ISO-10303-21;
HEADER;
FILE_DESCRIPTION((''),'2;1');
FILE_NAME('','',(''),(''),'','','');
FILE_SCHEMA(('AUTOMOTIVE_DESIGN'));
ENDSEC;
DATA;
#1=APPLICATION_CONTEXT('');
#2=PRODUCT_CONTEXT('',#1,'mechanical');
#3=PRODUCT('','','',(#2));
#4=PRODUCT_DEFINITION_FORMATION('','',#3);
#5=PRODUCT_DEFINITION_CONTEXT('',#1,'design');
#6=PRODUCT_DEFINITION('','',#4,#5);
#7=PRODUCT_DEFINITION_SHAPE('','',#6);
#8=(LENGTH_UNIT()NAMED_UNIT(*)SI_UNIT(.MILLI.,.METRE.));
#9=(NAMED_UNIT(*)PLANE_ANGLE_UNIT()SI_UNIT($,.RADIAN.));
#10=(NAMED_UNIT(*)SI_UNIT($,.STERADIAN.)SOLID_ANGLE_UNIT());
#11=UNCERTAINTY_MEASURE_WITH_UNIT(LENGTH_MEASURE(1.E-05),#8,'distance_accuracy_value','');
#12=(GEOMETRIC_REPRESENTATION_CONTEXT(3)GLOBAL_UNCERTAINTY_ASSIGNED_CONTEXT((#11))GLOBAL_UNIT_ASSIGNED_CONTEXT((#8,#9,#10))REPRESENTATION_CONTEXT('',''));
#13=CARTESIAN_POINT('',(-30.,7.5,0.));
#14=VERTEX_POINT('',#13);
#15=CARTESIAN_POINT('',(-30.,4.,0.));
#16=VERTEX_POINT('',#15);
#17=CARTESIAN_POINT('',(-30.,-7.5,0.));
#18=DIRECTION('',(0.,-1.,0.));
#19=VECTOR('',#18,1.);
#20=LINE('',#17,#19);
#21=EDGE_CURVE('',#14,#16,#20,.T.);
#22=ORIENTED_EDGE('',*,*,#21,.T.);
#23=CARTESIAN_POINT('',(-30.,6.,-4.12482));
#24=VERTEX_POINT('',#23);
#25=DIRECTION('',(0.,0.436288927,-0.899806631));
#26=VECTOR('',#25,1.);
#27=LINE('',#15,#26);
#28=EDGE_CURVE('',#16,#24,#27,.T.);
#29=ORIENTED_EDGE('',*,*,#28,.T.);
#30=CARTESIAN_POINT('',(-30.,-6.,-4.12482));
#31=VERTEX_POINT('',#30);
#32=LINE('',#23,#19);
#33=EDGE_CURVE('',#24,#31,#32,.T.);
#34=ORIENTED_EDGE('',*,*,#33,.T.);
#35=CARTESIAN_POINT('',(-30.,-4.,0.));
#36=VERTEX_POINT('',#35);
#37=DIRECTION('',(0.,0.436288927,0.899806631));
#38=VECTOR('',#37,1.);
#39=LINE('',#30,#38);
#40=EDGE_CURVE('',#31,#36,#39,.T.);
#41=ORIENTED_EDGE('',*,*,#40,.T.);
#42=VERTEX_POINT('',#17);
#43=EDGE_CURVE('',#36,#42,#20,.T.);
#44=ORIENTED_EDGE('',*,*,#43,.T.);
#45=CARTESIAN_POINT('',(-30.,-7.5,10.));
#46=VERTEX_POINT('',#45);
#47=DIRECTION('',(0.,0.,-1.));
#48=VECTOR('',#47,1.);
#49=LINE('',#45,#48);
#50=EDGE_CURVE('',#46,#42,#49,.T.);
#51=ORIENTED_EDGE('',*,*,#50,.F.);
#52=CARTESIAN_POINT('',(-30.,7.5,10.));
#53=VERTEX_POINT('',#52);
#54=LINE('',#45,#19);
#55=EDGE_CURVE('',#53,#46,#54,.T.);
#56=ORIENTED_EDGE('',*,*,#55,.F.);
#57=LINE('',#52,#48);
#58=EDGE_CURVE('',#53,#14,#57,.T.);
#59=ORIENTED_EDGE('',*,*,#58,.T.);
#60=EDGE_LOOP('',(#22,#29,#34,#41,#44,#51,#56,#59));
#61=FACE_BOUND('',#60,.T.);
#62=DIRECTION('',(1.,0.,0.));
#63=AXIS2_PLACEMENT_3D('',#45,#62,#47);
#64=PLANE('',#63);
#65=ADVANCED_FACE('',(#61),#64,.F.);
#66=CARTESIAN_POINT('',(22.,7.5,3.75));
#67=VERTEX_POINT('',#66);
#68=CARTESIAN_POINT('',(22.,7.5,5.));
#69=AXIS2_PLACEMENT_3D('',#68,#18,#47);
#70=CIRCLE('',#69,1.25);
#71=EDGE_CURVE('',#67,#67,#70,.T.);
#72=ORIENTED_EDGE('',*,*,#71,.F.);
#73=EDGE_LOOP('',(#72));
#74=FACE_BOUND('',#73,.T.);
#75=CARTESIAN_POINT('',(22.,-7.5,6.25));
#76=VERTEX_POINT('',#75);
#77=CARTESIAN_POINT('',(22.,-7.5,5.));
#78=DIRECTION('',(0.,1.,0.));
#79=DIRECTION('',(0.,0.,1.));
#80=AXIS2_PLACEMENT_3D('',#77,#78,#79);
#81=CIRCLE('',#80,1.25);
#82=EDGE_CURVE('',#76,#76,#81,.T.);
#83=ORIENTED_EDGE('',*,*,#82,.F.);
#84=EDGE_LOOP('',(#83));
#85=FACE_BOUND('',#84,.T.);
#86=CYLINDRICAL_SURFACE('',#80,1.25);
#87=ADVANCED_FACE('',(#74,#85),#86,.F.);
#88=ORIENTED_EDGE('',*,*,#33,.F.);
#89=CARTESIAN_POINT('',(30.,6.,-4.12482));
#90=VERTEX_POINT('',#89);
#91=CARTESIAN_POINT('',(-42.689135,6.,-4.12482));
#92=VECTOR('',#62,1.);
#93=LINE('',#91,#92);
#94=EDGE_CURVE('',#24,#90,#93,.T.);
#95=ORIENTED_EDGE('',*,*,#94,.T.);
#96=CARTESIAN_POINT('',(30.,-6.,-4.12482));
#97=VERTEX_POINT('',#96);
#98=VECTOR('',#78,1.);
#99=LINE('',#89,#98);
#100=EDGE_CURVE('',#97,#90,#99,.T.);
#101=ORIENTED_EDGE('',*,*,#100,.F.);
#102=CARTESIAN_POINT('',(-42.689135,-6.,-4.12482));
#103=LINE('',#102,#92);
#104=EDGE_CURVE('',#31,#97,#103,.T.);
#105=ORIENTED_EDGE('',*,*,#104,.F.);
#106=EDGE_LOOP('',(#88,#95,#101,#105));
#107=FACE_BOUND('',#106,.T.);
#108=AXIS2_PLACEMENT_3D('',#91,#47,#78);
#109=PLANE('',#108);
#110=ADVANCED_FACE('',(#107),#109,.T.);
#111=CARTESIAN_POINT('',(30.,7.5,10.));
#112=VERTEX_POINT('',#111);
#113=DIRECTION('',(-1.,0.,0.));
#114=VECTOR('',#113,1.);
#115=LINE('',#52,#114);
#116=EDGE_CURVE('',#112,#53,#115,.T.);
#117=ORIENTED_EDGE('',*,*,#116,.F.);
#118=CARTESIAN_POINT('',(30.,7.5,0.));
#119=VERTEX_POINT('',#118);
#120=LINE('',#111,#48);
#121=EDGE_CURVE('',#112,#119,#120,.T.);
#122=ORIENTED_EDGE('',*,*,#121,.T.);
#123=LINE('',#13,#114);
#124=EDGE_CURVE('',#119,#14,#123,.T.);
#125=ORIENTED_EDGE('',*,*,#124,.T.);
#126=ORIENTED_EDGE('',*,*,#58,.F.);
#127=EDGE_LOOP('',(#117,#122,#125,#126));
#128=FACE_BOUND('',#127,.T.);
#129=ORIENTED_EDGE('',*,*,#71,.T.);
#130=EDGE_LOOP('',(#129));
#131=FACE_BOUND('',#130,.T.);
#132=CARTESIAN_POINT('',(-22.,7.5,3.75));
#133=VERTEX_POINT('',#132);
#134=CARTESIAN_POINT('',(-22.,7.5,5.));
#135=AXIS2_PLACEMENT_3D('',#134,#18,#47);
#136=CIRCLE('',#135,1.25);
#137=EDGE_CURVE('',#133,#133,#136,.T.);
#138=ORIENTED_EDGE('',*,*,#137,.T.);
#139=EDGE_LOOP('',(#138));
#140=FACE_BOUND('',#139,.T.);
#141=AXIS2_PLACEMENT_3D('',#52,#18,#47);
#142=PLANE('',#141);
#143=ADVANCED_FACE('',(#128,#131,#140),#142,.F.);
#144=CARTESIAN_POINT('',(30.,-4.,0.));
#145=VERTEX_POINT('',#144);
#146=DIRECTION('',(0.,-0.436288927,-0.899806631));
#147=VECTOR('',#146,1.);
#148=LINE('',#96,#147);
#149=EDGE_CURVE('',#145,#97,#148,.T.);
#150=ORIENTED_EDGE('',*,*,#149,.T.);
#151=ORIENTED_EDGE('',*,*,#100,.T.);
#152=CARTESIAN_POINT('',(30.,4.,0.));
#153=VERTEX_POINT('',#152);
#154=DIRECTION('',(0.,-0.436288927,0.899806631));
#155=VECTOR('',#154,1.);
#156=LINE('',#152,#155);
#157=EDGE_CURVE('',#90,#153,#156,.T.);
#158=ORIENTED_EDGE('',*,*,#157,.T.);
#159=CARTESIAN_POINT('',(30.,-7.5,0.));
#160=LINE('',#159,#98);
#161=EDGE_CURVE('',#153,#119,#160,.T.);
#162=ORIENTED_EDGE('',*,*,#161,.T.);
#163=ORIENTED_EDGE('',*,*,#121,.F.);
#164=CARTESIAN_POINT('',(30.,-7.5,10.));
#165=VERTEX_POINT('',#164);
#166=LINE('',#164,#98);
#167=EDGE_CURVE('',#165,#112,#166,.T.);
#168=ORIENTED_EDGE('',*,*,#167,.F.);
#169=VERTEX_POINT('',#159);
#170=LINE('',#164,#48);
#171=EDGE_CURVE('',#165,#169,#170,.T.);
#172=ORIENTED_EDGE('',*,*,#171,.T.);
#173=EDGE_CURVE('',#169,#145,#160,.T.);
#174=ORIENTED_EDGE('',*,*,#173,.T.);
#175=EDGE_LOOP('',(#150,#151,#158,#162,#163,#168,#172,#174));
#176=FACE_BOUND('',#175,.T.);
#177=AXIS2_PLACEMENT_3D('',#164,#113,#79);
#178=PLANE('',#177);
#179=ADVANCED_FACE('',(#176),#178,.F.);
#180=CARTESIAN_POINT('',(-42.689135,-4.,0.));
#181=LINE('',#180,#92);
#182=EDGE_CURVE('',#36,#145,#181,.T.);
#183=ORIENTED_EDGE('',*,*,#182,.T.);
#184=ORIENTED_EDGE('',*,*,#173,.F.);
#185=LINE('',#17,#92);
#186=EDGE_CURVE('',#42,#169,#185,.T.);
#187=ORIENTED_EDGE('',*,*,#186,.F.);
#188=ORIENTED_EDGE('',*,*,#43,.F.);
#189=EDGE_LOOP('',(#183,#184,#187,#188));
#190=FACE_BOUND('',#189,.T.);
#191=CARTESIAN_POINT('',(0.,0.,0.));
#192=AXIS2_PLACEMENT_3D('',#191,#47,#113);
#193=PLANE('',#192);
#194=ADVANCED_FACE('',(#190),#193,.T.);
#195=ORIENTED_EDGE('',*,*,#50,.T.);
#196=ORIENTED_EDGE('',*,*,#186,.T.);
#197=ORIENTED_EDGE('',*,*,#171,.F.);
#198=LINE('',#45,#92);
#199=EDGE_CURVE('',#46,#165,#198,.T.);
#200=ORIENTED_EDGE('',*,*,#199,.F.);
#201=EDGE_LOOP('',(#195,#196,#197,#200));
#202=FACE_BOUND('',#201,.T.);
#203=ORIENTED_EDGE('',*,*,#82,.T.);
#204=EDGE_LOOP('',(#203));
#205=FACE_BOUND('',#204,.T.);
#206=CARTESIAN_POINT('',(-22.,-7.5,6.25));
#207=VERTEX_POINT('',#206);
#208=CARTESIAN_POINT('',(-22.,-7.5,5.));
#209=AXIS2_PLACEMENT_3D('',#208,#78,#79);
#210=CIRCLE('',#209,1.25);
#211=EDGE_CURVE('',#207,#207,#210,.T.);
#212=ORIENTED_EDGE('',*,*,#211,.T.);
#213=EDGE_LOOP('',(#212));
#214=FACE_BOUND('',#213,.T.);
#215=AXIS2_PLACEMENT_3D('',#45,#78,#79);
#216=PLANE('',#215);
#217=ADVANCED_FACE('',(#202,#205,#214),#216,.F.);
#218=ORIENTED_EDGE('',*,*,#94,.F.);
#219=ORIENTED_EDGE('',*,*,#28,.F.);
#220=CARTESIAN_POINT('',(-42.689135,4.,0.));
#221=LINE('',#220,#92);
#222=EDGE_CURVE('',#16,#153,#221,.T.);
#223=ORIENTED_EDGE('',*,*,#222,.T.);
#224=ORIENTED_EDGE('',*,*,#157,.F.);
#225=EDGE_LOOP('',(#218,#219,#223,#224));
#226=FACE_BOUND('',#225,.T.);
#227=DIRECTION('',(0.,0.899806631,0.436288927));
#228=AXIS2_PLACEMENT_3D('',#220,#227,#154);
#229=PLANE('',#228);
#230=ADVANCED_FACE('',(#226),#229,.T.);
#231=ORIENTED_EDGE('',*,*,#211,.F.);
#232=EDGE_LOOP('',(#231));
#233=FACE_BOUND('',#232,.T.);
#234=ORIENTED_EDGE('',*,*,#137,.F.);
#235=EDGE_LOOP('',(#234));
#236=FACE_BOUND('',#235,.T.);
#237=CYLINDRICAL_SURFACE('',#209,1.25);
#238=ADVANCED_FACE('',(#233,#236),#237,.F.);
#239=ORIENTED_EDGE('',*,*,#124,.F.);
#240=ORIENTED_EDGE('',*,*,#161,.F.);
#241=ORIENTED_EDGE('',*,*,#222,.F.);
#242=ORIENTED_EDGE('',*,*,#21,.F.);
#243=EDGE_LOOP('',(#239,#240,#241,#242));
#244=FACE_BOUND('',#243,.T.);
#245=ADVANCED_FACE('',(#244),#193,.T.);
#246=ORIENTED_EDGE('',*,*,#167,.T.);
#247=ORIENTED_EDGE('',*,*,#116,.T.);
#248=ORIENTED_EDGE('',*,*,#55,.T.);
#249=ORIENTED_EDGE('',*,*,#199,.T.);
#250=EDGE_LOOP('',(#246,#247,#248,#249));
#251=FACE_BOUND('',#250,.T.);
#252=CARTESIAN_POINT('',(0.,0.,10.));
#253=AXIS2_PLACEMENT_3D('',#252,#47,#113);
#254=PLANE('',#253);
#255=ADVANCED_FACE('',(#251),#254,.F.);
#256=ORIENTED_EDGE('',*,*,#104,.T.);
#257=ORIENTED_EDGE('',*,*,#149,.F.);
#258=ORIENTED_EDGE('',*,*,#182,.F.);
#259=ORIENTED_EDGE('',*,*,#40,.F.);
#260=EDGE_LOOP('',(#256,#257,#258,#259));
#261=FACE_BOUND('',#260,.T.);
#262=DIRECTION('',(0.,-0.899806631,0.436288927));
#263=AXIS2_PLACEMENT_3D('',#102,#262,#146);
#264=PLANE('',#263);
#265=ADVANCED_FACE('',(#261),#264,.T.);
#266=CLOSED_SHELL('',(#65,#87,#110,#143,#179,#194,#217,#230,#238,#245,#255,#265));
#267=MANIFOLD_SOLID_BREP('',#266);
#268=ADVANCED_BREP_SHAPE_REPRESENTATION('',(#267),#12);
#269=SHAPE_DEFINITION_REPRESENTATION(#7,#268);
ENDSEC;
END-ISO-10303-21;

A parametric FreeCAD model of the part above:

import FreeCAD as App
import Part
import Sketcher

V = App.Vector


def add_polygon(sketch, points):
    """Adds a closed chain of lines whose ends are joined by coincident constraints."""
    first, n = sketch.GeometryCount, len(points)
    for a, b in zip(points, points[1:] + points[:1]):
        sketch.addGeometry(Part.LineSegment(App.Vector(*a, 0), App.Vector(*b, 0)), False)
    for i in range(n):
        sketch.addConstraint(Sketcher.Constraint("Coincident", first + i, 2, first + (i + 1) % n, 1))

doc = App.newDocument("Part")
body = doc.addObject("PartDesign::Body", "Body")

sketch1 = body.newObject("Sketcher::SketchObject", "Sketch")
sketch1.AttachmentSupport = (doc.getObject("XY_Plane"), [""])
sketch1.MapMode = "FlatFace"
add_polygon(sketch1, [(-30, 7.5), (-30, -7.5), (30, -7.5), (30, 7.5)])
sketch1.addConstraint([
    Sketcher.Constraint("Vertical", 0),
    Sketcher.Constraint("Horizontal", 1),
    Sketcher.Constraint("Vertical", 2),
    Sketcher.Constraint("Horizontal", 3),
    Sketcher.Constraint("Symmetric", 0, 2, 2, 2, -1, 1),
    Sketcher.Constraint("DistanceX", 1, 1, 1, 2, 60.0),
    Sketcher.Constraint("DistanceY", 0, 2, 0, 1, 15.0),
])
pad1 = body.newObject("PartDesign::Pad", "Pad")
pad1.Profile = sketch1
pad1.Length = 10

sketch2 = body.newObject("Sketcher::SketchObject", "Sketch001")
sketch2.AttachmentSupport = (doc.getObject("YZ_Plane"), [""])
sketch2.MapMode = "FlatFace"
sketch2.AttachmentOffset = App.Placement(V(0, 0, 30), App.Rotation())
add_polygon(sketch2, [(6, -4.12482), (4, 0), (-4, 0), (-6, -4.12482)])
sketch2.addConstraint([
    Sketcher.Constraint("Horizontal", 1),
    Sketcher.Constraint("Horizontal", 3),
    Sketcher.Constraint("Symmetric", 0, 2, 1, 2, -1, 1),
    Sketcher.Constraint("Equal", 0, 2),
    Sketcher.Constraint("DistanceX", 1, 2, 1, 1, 8.0),
    Sketcher.Constraint("DistanceX", 3, 1, 3, 2, 12.0),
    Sketcher.Constraint("Distance", 0, 4.584118),
])
pad2 = body.newObject("PartDesign::Pad", "Pad001")
pad2.Profile = sketch2
pad2.Length = 60
pad2.Reversed = True

sketch3 = body.newObject("Sketcher::SketchObject", "Sketch002")
sketch3.AttachmentSupport = (doc.getObject("XZ_Plane"), [""])
sketch3.MapMode = "FlatFace"
sketch3.AttachmentOffset = App.Placement(V(0, 0, -7.5), App.Rotation())
sketch3.addGeometry([
    Part.Circle(V(-22, 5, 0), V(0, 0, 1), 1.25),
    Part.Circle(V(22, 5, 0), V(0, 0, 1), 1.25),
], False)
sketch3.addConstraint([
    Sketcher.Constraint("Equal", 0, 1),
    Sketcher.Constraint("Symmetric", 0, 3, 1, 3, -2),
    Sketcher.Constraint("Diameter", 0, 2.5),
    Sketcher.Constraint("DistanceX", 0, 3, -1, 1, 22.0),
    Sketcher.Constraint("DistanceY", -1, 1, 0, 3, 5.0),
])
pocket1 = body.newObject("PartDesign::Pocket", "Pocket")
pocket1.Profile = sketch3
pocket1.Type = "ThroughAll"
pocket1.Midplane = True

doc.recompute()
